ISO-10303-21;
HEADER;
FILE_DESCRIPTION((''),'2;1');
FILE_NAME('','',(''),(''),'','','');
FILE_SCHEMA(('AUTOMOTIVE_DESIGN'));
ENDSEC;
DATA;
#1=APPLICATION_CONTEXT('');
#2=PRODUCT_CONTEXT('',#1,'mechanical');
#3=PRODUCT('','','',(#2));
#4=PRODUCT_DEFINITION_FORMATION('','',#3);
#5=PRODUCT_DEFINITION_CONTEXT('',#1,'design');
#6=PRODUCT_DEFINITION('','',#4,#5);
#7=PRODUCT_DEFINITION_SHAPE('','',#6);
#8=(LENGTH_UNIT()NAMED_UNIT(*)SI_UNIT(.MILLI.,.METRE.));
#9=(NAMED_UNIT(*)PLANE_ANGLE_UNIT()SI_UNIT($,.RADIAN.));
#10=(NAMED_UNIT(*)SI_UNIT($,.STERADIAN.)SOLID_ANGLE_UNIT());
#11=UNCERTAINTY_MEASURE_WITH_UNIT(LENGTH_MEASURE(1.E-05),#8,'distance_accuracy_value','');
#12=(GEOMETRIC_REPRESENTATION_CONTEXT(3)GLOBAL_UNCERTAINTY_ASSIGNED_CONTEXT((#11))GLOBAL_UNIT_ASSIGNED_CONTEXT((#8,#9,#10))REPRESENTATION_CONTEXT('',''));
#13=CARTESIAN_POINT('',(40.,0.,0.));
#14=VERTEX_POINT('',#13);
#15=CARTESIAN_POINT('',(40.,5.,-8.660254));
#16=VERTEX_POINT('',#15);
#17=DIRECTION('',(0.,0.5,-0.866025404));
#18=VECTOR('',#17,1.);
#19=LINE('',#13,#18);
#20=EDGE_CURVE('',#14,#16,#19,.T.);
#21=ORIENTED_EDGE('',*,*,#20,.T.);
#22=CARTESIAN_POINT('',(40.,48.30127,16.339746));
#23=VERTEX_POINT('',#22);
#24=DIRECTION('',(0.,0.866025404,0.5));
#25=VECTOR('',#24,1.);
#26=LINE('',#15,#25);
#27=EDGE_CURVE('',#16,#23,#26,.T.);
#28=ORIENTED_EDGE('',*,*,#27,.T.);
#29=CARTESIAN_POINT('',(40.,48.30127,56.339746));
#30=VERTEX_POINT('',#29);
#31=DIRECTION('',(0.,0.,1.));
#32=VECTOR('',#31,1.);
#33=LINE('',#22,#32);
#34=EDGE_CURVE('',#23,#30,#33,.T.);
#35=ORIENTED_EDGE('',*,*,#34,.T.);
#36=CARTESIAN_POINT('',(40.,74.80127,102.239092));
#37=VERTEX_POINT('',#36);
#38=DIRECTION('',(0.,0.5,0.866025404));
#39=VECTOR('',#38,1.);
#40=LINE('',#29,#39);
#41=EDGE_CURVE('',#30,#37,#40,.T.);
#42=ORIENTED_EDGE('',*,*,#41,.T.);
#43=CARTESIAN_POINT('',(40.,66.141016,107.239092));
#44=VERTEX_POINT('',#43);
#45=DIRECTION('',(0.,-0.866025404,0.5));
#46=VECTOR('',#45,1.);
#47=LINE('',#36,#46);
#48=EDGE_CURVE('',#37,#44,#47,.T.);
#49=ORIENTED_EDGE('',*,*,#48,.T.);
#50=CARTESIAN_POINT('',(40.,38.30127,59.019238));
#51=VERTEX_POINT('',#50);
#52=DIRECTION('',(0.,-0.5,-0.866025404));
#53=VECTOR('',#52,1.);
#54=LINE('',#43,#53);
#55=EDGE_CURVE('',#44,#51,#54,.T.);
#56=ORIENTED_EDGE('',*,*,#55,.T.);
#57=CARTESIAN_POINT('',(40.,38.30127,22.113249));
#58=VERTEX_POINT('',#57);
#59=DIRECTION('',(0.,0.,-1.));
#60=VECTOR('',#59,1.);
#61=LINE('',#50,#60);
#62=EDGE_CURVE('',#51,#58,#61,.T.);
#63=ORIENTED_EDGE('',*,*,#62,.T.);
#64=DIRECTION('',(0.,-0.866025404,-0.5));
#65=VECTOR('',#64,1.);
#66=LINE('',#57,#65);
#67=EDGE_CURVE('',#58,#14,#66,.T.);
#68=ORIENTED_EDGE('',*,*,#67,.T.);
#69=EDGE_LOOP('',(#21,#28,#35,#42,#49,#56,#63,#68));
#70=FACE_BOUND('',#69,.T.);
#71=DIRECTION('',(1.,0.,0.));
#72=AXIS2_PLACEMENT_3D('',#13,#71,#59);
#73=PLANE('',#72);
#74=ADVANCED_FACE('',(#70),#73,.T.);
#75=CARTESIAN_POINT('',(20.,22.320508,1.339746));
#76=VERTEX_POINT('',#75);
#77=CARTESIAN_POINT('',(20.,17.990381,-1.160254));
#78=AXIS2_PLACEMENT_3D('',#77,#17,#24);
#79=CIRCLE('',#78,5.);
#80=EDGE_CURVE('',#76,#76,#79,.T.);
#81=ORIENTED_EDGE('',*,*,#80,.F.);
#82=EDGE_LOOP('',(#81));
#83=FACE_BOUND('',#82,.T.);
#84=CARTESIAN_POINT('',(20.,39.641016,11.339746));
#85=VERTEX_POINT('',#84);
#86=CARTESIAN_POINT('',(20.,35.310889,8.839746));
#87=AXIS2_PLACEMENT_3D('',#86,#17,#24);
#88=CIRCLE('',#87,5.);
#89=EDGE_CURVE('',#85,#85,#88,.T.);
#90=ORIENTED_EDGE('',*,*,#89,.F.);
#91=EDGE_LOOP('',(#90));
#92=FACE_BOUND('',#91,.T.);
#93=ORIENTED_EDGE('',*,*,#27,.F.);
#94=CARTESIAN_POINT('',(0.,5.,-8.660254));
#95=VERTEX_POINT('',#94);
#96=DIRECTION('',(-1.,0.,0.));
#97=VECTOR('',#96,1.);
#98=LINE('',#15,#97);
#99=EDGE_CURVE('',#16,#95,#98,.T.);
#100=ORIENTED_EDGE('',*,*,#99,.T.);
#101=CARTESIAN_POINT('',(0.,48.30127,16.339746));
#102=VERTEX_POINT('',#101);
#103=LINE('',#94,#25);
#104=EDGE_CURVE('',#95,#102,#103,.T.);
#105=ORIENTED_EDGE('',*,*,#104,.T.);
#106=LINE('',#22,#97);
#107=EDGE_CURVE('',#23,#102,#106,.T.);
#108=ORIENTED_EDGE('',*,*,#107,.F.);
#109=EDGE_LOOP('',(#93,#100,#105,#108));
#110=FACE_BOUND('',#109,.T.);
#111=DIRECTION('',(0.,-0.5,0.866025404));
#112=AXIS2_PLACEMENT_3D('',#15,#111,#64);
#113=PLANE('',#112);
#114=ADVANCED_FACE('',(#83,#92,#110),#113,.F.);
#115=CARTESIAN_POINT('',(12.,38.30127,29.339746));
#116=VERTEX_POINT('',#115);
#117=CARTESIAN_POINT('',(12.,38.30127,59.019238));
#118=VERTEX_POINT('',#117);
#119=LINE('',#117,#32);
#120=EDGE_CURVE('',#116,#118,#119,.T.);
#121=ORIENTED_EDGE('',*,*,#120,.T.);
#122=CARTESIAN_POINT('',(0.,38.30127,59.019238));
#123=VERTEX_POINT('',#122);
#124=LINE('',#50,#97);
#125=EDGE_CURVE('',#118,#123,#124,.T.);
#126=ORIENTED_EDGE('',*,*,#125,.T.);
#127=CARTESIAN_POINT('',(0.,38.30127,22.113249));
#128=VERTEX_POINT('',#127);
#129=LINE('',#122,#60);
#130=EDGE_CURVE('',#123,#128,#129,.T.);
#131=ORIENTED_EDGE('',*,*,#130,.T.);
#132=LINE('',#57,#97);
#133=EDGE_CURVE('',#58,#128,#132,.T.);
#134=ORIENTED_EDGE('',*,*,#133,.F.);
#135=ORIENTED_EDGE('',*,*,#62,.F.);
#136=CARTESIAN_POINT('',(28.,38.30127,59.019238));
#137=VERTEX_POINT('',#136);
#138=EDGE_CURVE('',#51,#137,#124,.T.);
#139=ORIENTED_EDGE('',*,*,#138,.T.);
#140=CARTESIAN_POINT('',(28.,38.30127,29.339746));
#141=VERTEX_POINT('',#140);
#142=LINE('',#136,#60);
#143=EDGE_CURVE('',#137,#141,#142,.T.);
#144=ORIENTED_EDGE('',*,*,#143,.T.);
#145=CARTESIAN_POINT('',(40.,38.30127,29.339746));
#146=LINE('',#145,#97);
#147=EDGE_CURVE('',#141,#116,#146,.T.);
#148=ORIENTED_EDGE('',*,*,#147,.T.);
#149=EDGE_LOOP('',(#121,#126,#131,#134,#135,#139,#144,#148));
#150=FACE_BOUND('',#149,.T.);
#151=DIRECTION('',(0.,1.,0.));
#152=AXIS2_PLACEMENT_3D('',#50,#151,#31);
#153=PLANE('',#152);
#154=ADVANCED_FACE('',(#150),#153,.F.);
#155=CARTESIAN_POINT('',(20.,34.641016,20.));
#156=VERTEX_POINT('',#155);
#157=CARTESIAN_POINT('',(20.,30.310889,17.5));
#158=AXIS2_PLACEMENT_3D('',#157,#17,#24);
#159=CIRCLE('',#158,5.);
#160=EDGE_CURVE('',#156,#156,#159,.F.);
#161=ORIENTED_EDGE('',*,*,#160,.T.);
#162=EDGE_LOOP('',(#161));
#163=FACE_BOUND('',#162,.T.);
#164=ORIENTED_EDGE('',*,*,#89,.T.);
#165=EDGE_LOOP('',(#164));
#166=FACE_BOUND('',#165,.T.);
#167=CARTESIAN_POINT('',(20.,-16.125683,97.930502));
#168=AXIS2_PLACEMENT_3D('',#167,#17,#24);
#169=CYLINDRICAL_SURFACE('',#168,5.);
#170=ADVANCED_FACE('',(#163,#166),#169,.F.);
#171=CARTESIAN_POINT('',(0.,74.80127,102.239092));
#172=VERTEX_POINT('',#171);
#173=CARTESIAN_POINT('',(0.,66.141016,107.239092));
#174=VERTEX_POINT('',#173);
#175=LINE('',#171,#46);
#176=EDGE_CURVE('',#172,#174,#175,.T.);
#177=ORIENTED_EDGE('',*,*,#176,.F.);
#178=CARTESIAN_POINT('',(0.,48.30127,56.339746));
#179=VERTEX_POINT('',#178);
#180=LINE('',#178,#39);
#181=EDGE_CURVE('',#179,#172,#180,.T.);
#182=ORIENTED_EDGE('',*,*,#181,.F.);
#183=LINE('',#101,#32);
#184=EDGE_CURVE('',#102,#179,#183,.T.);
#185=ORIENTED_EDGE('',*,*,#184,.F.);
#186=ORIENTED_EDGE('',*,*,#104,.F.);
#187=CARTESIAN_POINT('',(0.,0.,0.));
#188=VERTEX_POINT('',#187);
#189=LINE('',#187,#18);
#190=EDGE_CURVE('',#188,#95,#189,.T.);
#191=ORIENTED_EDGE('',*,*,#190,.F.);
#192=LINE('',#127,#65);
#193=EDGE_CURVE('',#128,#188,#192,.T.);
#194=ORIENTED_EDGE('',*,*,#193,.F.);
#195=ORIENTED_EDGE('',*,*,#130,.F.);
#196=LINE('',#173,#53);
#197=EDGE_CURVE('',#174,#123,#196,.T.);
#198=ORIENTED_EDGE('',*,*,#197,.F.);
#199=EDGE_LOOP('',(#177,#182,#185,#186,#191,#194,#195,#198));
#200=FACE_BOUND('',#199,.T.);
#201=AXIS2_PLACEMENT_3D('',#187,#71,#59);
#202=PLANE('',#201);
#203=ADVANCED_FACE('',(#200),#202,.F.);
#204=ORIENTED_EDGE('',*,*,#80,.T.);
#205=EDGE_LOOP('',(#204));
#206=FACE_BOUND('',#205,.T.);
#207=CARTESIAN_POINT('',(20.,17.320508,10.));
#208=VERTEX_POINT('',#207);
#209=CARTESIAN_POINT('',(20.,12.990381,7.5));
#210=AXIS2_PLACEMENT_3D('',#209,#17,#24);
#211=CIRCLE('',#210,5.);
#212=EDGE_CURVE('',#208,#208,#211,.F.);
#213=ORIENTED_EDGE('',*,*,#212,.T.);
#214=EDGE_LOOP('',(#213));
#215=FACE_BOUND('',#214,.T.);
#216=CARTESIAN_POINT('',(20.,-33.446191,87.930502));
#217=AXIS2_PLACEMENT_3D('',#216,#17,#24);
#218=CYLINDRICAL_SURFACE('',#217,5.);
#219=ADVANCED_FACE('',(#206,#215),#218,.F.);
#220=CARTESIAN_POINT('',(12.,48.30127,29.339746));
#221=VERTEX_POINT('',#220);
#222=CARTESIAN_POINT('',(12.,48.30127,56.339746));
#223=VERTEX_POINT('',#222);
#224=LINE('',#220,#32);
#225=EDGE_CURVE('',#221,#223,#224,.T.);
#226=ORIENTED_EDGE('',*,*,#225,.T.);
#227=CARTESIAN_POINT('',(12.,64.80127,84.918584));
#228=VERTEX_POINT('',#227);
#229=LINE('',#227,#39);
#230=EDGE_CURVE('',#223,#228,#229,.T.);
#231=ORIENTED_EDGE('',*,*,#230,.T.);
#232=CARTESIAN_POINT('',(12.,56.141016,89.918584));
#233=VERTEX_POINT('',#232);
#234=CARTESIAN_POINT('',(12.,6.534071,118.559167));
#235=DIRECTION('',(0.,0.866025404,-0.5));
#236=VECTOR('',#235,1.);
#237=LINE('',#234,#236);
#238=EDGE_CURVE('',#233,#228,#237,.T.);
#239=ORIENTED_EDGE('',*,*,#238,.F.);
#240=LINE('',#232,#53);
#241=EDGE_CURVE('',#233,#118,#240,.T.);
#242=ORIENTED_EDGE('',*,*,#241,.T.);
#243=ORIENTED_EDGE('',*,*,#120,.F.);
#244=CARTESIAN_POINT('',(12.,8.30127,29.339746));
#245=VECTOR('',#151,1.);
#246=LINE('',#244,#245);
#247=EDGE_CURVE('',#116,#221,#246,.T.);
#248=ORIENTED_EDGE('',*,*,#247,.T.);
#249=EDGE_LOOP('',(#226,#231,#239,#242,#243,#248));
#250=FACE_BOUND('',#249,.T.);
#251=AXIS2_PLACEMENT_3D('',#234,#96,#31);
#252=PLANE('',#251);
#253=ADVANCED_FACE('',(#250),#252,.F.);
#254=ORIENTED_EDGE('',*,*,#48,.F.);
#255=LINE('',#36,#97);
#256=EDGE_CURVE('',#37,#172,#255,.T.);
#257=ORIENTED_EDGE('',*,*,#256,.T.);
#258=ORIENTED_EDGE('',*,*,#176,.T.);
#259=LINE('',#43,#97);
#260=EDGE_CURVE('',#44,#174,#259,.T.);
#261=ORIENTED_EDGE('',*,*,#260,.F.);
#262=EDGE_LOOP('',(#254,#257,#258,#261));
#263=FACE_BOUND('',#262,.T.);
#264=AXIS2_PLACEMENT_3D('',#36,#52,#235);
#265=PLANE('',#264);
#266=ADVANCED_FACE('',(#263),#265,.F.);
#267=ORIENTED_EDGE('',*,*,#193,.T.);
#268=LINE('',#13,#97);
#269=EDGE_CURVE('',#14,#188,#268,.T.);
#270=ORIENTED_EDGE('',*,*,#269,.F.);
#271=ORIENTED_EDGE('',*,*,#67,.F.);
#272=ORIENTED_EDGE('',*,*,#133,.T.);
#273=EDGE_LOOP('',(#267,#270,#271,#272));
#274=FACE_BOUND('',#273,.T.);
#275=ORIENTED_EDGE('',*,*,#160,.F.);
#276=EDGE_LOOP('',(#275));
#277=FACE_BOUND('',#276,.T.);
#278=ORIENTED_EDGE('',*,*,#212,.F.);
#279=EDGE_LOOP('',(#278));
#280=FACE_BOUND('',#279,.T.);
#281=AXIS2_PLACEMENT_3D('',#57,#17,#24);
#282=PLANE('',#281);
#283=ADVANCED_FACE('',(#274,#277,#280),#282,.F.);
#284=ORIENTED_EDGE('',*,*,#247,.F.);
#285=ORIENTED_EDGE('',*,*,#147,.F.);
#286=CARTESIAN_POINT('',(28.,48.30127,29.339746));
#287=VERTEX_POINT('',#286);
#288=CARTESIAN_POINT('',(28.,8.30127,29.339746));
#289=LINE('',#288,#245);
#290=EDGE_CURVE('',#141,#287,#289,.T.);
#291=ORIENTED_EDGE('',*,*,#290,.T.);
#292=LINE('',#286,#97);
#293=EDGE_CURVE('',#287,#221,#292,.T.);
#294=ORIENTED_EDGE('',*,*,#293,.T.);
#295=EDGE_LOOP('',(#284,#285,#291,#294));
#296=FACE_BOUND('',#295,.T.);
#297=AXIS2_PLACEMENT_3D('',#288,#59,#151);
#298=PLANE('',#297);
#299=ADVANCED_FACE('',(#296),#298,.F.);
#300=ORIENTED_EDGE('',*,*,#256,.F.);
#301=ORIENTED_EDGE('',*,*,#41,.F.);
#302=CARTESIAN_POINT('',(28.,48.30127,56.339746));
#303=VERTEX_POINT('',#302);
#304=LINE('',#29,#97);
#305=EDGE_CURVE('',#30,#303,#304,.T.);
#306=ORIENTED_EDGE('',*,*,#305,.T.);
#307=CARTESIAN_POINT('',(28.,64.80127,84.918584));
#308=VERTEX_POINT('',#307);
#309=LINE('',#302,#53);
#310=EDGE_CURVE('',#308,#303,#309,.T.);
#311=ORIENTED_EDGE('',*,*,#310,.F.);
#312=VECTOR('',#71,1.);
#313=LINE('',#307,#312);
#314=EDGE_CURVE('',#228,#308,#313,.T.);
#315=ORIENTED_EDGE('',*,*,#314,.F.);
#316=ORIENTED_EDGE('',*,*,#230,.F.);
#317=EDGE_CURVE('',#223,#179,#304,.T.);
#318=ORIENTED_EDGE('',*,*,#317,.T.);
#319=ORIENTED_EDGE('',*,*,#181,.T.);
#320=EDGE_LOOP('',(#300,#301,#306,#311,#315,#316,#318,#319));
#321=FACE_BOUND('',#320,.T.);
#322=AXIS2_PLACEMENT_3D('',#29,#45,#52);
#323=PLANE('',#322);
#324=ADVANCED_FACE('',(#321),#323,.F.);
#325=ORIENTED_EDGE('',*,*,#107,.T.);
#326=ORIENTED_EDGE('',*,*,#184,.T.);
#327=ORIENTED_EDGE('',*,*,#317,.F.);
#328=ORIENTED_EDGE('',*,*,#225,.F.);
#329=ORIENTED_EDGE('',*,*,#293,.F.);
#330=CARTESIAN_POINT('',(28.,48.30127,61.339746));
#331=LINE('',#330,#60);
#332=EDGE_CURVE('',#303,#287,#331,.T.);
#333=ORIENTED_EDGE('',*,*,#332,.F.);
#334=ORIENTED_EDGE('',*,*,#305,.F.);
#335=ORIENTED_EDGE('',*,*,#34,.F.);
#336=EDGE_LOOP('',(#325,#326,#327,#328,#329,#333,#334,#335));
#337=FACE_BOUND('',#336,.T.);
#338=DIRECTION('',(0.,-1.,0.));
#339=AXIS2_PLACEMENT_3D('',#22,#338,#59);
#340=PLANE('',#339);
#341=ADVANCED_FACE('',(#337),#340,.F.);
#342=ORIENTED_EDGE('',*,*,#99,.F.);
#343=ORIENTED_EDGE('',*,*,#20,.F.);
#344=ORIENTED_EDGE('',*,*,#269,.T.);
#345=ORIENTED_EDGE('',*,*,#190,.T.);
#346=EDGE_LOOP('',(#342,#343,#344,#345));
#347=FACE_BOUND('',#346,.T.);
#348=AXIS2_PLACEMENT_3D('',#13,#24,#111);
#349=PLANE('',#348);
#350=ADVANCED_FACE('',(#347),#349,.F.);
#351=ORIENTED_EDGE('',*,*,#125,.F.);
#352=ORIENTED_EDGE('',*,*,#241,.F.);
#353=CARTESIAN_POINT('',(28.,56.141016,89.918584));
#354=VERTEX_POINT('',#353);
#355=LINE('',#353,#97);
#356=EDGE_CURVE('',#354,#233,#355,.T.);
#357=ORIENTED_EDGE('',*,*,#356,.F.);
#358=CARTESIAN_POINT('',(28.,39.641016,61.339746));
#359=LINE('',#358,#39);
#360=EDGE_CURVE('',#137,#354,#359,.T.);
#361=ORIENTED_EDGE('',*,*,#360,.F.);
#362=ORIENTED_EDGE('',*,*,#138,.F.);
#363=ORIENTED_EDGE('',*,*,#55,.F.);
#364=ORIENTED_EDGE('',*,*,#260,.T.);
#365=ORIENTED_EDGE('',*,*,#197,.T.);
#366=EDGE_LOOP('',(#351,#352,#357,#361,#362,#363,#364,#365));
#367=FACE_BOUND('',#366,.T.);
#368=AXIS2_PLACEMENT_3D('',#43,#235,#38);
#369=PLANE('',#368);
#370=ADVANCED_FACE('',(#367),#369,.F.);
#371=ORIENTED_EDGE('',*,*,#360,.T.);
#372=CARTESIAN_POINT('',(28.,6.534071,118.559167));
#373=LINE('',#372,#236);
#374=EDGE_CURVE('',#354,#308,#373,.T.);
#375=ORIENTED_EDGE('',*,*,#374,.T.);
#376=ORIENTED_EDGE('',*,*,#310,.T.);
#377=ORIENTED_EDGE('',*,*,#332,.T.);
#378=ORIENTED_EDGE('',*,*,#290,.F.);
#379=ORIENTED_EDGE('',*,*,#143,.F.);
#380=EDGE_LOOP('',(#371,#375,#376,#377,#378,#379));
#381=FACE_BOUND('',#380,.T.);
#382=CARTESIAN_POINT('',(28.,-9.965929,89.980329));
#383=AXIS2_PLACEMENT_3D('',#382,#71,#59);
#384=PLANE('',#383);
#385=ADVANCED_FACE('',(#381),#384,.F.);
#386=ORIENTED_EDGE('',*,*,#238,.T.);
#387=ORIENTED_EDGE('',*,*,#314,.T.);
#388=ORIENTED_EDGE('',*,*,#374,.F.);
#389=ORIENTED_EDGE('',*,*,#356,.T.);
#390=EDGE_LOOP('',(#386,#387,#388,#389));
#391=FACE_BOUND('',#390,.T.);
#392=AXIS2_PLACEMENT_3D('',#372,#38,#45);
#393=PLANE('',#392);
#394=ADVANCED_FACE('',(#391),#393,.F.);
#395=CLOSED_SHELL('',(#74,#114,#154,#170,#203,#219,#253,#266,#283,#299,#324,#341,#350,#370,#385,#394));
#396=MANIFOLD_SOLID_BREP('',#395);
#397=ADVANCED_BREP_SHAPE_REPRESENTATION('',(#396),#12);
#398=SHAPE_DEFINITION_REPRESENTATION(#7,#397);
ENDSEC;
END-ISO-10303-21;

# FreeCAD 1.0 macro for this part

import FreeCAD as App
import Part
import Sketcher
from FreeCAD import Vector
Q = App.Units.Quantity

doc = App.newDocument("Part")
body = doc.addObject("PartDesign::Body", "Body")

sketch1 = body.newObject("Sketcher::SketchObject", "Sketch")
sketch1.AttachmentSupport = (doc.getObject("YZ_Plane"), [""])
sketch1.MapMode = "FlatFace"
sketch1.addGeometry([
    Part.LineSegment(Vector(75, 102, 0), Vector(66, 107, 0)),
    Part.LineSegment(Vector(66, 107, 0), Vector(38, 59, 0)),
    Part.LineSegment(Vector(38, 59, 0), Vector(38, 22, 0)),
    Part.LineSegment(Vector(38, 22, 0), Vector(0, 0, 0)),
    Part.LineSegment(Vector(0, 0, 0), Vector(5, -9, 0)),
    Part.LineSegment(Vector(5, -9, 0), Vector(48, 16, 0)),
    Part.LineSegment(Vector(48, 16, 0), Vector(48, 56, 0)),
    Part.LineSegment(Vector(48, 56, 0), Vector(75, 102, 0)),
], False)
sketch1.addConstraint([
    Sketcher.Constraint("Coincident", 0, 2, 1, 1),
    Sketcher.Constraint("Coincident", 1, 2, 2, 1),
    Sketcher.Constraint("Coincident", 2, 2, 3, 1),
    Sketcher.Constraint("Coincident", 3, 2, 4, 1),
    Sketcher.Constraint("Coincident", 4, 2, 5, 1),
    Sketcher.Constraint("Coincident", 5, 2, 6, 1),
    Sketcher.Constraint("Coincident", 6, 2, 7, 1),
    Sketcher.Constraint("Coincident", 7, 2, 0, 1),
    Sketcher.Constraint("Vertical", 2),
    Sketcher.Constraint("Vertical", 6),
    Sketcher.Constraint("Coincident", 3, 2, -1, 1),
    Sketcher.Constraint("Perpendicular", 0, 1),
    Sketcher.Constraint("Perpendicular", 3, 4),
    Sketcher.Constraint("Perpendicular", 4, 5),
    Sketcher.Constraint("Parallel", 1, 7),
    Sketcher.Constraint("Equal", 0, 4),
    Sketcher.Constraint("DistanceY", 6, 1, 6, 2, 40.0),
    Sketcher.Constraint("Angle", 0, Q("150 deg")),
    Sketcher.Constraint("Angle", 3, Q("-150 deg")),
    Sketcher.Constraint("Distance", 0, 10.0),
    Sketcher.Constraint("Distance", 5, 50.0),
    Sketcher.Constraint("Distance", 7, 53.0),
    Sketcher.Constraint("DistanceX", 2, 2, 5, 2, 10.0),
])
pad1 = body.newObject("PartDesign::Pad", "Pad")
pad1.Profile = sketch1
pad1.Length = 40

sketch2 = body.newObject("Sketcher::SketchObject", "Sketch001")
sketch2.Placement = App.Placement(Vector(0, 5, -8.660254), App.Rotation(Vector(-1, 0, 0), Vector(0, 0.866025404, 0.5), Vector(0, 0.5, -0.866025404), "ZXY"))
sketch2.addGeometry(Part.Circle(Vector(-20, 35, 0), Vector(0, 0, 1), 5), False)
sketch2.addConstraint([
    Sketcher.Constraint("Diameter", 0, 10.0),
    Sketcher.Constraint("DistanceX", 0, 3, -1, 1, 20.0),
    Sketcher.Constraint("DistanceY", -1, 1, 0, 3, 35.0),
])
pocket1 = body.newObject("PartDesign::Pocket", "Pocket")
pocket1.Profile = sketch2
pocket1.Type = "UpToFirst"

sketch3 = body.newObject("Sketcher::SketchObject", "Sketch002")
sketch3.Placement = App.Placement(Vector(0, 5, -8.660254), App.Rotation(Vector(-1, 0, 0), Vector(0, 0.866025404, 0.5), Vector(0, 0.5, -0.866025404), "ZXY"))
sketch3.addGeometry(Part.Circle(Vector(-20, 15, 0), Vector(0, 0, 1), 5), False)
sketch3.addConstraint([
    Sketcher.Constraint("Diameter", 0, 10.0),
    Sketcher.Constraint("DistanceX", 0, 3, -1, 1, 20.0),
    Sketcher.Constraint("DistanceY", -1, 1, 0, 3, 15.0),
])
pocket2 = body.newObject("PartDesign::Pocket", "Pocket001")
pocket2.Profile = sketch3
pocket2.Type = "UpToFirst"

sketch4 = body.newObject("Sketcher::SketchObject", "Sketch003")
sketch4.Placement = App.Placement(Vector(0, 11.830127, -6.830127), App.Rotation(Vector(1, 0, 0), Vector(0, -0.5, -0.866025404), Vector(0, 0.866025404, -0.5), "ZXY"))
sketch4.addGeometry([
    Part.LineSegment(Vector(12, -73, 0), Vector(12, -106, 0)),
    Part.LineSegment(Vector(12, -106, 0), Vector(28, -106, 0)),
    Part.LineSegment(Vector(28, -106, 0), Vector(28, -73, 0)),
    Part.LineSegment(Vector(28, -73, 0), Vector(12, -73, 0)),
], False)
sketch4.addConstraint([
    Sketcher.Constraint("Coincident", 0, 2, 1, 1),
    Sketcher.Constraint("Coincident", 1, 2, 2, 1),
    Sketcher.Constraint("Coincident", 2, 2, 3, 1),
    Sketcher.Constraint("Coincident", 3, 2, 0, 1),
    Sketcher.Constraint("Vertical", 0),
    Sketcher.Constraint("Horizontal", 1),
    Sketcher.Constraint("Vertical", 2),
    Sketcher.Constraint("Horizontal", 3),
    Sketcher.Constraint("DistanceX", 1, 1, 1, 2, 16.0),
    Sketcher.Constraint("DistanceY", 0, 2, 0, 1, 33.0),
    Sketcher.Constraint("DistanceX", -1, 1, 0, 2, 12.0),
    Sketcher.Constraint("DistanceY", 0, 2, -1, 1, 105.942286),
])
pocket3 = body.newObject("PartDesign::Pocket", "Pocket002")
pocket3.Profile = sketch4
pocket3.Type = "UpToFirst"

sketch5 = body.newObject("Sketcher::SketchObject", "Sketch004")
sketch5.AttachmentSupport = (doc.getObject("XZ_Plane"), [""])
sketch5.MapMode = "FlatFace"
sketch5.AttachmentOffset = App.Placement(Vector(0, 0, -48.30127), App.Rotation())
sketch5.addGeometry([
    Part.LineSegment(Vector(12, 29, 0), Vector(12, 61, 0)),
    Part.LineSegment(Vector(12, 61, 0), Vector(28, 61, 0)),
    Part.LineSegment(Vector(28, 61, 0), Vector(28, 29, 0)),
    Part.LineSegment(Vector(28, 29, 0), Vector(12, 29, 0)),
], False)
sketch5.addConstraint([
    Sketcher.Constraint("Coincident", 0, 2, 1, 1),
    Sketcher.Constraint("Coincident", 1, 2, 2, 1),
    Sketcher.Constraint("Coincident", 2, 2, 3, 1),
    Sketcher.Constraint("Coincident", 3, 2, 0, 1),
    Sketcher.Constraint("Vertical", 0),
    Sketcher.Constraint("Horizontal", 1),
    Sketcher.Constraint("Vertical", 2),
    Sketcher.Constraint("Horizontal", 3),
    Sketcher.Constraint("DistanceX", 1, 1, 1, 2, 16.0),
    Sketcher.Constraint("DistanceY", 0, 1, 0, 2, 32.0),
    Sketcher.Constraint("DistanceX", -1, 1, 0, 2, 12.0),
    Sketcher.Constraint("DistanceY", -1, 1, 0, 2, 61.339746),
])
pocket4 = body.newObject("PartDesign::Pocket", "Pocket003")
pocket4.Profile = sketch5
pocket4.Length = 40
pocket4.Reversed = True

doc.recompute()
